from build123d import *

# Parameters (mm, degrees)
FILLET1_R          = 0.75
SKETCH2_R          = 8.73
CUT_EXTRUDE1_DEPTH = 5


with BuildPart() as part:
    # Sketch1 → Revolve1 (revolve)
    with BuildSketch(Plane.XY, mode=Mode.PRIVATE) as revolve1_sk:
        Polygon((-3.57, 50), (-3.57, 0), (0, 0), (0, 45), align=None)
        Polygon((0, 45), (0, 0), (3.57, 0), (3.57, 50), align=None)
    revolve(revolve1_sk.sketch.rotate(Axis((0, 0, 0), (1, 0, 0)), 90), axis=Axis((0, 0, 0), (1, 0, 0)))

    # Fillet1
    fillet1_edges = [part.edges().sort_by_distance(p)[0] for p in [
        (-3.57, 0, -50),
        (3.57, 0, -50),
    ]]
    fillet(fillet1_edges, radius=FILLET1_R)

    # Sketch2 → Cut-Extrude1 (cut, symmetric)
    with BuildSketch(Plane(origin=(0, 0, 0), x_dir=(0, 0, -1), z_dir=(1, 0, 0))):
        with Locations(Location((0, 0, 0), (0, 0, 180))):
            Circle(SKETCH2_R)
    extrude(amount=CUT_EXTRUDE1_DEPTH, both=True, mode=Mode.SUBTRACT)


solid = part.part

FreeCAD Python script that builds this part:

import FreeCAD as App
import Part
import Sketcher

V = App.Vector


def edges_at(feature, points):
    """Names of the edges that pass closest to the given points."""
    edges = feature.Shape.Edges
    near = lambda p: min(range(len(edges)), key=lambda i: edges[i].distToShape(Part.Vertex(*p))[0])
    return sorted({f"Edge{near(p) + 1}" for p in points})


def add_polygon(sketch, points):
    """Adds a closed chain of lines whose ends are joined by coincident constraints."""
    first, n = sketch.GeometryCount, len(points)
    for a, b in zip(points, points[1:] + points[:1]):
        sketch.addGeometry(Part.LineSegment(App.Vector(*a, 0), App.Vector(*b, 0)), False)
    for i in range(n):
        sketch.addConstraint(Sketcher.Constraint("Coincident", first + i, 2, first + (i + 1) % n, 1))

doc = App.newDocument("Part")
body = doc.addObject("PartDesign::Body", "Body")

# Sketch on XY plane
sketch1 = body.newObject("Sketcher::SketchObject", "Sketch")
sketch1.AttachmentSupport = (doc.getObject("XY_Plane"), [""])
sketch1.MapMode = "FlatFace"
add_polygon(sketch1, [(-3.57, 50), (-3.57, 0), (3.57, 0), (3.57, 50), (0, 45)])  # lines 0-4
sketch1.addConstraint([
    Sketcher.Constraint("Vertical", 0),
    Sketcher.Constraint("Horizontal", 1),
    Sketcher.Constraint("Vertical", 2),
    Sketcher.Constraint("Symmetric", 0, 2, 1, 2, -1, 1),
    Sketcher.Constraint("PointOnObject", 3, 2, -2),
    Sketcher.Constraint("Horizontal", 2, 2, 4, 2),
    Sketcher.Constraint("DistanceY", 0, 2, 0, 1, 50.0),
    Sketcher.Constraint("DistanceY", -1, 1, 3, 2, 45.0),
    Sketcher.Constraint("DistanceX", 1, 1, 1, 2, 7.14),
])
revolution = body.newObject("PartDesign::Revolution", "Revolution")
revolution.Profile = sketch1
revolution.ReferenceAxis = (sketch1, ["H_Axis"])
revolution.Angle = 360
doc.recompute()

fillet = body.newObject("PartDesign::Fillet", "Fillet")
fillet.Base = (revolution, edges_at(revolution, [(-3.57, 0, -50), (3.57, 0, -50)]))
fillet.Radius = 0.75

# Sketch on YZ plane
sketch2 = body.newObject("Sketcher::SketchObject", "Sketch001")
sketch2.AttachmentSupport = (doc.getObject("YZ_Plane"), [""])
sketch2.MapMode = "FlatFace"
sketch2.addGeometry(Part.Circle(V(0, 0, 0), V(0, 0, 1), 8.73), False)
sketch2.addConstraint([
    Sketcher.Constraint("Coincident", 0, 3, -1, 1),
    Sketcher.Constraint("Diameter", 0, 17.46),
])
pocket1 = body.newObject("PartDesign::Pocket", "Pocket")
pocket1.Profile = sketch2
pocket1.Length = 10
pocket1.Midplane = True

doc.recompute()
